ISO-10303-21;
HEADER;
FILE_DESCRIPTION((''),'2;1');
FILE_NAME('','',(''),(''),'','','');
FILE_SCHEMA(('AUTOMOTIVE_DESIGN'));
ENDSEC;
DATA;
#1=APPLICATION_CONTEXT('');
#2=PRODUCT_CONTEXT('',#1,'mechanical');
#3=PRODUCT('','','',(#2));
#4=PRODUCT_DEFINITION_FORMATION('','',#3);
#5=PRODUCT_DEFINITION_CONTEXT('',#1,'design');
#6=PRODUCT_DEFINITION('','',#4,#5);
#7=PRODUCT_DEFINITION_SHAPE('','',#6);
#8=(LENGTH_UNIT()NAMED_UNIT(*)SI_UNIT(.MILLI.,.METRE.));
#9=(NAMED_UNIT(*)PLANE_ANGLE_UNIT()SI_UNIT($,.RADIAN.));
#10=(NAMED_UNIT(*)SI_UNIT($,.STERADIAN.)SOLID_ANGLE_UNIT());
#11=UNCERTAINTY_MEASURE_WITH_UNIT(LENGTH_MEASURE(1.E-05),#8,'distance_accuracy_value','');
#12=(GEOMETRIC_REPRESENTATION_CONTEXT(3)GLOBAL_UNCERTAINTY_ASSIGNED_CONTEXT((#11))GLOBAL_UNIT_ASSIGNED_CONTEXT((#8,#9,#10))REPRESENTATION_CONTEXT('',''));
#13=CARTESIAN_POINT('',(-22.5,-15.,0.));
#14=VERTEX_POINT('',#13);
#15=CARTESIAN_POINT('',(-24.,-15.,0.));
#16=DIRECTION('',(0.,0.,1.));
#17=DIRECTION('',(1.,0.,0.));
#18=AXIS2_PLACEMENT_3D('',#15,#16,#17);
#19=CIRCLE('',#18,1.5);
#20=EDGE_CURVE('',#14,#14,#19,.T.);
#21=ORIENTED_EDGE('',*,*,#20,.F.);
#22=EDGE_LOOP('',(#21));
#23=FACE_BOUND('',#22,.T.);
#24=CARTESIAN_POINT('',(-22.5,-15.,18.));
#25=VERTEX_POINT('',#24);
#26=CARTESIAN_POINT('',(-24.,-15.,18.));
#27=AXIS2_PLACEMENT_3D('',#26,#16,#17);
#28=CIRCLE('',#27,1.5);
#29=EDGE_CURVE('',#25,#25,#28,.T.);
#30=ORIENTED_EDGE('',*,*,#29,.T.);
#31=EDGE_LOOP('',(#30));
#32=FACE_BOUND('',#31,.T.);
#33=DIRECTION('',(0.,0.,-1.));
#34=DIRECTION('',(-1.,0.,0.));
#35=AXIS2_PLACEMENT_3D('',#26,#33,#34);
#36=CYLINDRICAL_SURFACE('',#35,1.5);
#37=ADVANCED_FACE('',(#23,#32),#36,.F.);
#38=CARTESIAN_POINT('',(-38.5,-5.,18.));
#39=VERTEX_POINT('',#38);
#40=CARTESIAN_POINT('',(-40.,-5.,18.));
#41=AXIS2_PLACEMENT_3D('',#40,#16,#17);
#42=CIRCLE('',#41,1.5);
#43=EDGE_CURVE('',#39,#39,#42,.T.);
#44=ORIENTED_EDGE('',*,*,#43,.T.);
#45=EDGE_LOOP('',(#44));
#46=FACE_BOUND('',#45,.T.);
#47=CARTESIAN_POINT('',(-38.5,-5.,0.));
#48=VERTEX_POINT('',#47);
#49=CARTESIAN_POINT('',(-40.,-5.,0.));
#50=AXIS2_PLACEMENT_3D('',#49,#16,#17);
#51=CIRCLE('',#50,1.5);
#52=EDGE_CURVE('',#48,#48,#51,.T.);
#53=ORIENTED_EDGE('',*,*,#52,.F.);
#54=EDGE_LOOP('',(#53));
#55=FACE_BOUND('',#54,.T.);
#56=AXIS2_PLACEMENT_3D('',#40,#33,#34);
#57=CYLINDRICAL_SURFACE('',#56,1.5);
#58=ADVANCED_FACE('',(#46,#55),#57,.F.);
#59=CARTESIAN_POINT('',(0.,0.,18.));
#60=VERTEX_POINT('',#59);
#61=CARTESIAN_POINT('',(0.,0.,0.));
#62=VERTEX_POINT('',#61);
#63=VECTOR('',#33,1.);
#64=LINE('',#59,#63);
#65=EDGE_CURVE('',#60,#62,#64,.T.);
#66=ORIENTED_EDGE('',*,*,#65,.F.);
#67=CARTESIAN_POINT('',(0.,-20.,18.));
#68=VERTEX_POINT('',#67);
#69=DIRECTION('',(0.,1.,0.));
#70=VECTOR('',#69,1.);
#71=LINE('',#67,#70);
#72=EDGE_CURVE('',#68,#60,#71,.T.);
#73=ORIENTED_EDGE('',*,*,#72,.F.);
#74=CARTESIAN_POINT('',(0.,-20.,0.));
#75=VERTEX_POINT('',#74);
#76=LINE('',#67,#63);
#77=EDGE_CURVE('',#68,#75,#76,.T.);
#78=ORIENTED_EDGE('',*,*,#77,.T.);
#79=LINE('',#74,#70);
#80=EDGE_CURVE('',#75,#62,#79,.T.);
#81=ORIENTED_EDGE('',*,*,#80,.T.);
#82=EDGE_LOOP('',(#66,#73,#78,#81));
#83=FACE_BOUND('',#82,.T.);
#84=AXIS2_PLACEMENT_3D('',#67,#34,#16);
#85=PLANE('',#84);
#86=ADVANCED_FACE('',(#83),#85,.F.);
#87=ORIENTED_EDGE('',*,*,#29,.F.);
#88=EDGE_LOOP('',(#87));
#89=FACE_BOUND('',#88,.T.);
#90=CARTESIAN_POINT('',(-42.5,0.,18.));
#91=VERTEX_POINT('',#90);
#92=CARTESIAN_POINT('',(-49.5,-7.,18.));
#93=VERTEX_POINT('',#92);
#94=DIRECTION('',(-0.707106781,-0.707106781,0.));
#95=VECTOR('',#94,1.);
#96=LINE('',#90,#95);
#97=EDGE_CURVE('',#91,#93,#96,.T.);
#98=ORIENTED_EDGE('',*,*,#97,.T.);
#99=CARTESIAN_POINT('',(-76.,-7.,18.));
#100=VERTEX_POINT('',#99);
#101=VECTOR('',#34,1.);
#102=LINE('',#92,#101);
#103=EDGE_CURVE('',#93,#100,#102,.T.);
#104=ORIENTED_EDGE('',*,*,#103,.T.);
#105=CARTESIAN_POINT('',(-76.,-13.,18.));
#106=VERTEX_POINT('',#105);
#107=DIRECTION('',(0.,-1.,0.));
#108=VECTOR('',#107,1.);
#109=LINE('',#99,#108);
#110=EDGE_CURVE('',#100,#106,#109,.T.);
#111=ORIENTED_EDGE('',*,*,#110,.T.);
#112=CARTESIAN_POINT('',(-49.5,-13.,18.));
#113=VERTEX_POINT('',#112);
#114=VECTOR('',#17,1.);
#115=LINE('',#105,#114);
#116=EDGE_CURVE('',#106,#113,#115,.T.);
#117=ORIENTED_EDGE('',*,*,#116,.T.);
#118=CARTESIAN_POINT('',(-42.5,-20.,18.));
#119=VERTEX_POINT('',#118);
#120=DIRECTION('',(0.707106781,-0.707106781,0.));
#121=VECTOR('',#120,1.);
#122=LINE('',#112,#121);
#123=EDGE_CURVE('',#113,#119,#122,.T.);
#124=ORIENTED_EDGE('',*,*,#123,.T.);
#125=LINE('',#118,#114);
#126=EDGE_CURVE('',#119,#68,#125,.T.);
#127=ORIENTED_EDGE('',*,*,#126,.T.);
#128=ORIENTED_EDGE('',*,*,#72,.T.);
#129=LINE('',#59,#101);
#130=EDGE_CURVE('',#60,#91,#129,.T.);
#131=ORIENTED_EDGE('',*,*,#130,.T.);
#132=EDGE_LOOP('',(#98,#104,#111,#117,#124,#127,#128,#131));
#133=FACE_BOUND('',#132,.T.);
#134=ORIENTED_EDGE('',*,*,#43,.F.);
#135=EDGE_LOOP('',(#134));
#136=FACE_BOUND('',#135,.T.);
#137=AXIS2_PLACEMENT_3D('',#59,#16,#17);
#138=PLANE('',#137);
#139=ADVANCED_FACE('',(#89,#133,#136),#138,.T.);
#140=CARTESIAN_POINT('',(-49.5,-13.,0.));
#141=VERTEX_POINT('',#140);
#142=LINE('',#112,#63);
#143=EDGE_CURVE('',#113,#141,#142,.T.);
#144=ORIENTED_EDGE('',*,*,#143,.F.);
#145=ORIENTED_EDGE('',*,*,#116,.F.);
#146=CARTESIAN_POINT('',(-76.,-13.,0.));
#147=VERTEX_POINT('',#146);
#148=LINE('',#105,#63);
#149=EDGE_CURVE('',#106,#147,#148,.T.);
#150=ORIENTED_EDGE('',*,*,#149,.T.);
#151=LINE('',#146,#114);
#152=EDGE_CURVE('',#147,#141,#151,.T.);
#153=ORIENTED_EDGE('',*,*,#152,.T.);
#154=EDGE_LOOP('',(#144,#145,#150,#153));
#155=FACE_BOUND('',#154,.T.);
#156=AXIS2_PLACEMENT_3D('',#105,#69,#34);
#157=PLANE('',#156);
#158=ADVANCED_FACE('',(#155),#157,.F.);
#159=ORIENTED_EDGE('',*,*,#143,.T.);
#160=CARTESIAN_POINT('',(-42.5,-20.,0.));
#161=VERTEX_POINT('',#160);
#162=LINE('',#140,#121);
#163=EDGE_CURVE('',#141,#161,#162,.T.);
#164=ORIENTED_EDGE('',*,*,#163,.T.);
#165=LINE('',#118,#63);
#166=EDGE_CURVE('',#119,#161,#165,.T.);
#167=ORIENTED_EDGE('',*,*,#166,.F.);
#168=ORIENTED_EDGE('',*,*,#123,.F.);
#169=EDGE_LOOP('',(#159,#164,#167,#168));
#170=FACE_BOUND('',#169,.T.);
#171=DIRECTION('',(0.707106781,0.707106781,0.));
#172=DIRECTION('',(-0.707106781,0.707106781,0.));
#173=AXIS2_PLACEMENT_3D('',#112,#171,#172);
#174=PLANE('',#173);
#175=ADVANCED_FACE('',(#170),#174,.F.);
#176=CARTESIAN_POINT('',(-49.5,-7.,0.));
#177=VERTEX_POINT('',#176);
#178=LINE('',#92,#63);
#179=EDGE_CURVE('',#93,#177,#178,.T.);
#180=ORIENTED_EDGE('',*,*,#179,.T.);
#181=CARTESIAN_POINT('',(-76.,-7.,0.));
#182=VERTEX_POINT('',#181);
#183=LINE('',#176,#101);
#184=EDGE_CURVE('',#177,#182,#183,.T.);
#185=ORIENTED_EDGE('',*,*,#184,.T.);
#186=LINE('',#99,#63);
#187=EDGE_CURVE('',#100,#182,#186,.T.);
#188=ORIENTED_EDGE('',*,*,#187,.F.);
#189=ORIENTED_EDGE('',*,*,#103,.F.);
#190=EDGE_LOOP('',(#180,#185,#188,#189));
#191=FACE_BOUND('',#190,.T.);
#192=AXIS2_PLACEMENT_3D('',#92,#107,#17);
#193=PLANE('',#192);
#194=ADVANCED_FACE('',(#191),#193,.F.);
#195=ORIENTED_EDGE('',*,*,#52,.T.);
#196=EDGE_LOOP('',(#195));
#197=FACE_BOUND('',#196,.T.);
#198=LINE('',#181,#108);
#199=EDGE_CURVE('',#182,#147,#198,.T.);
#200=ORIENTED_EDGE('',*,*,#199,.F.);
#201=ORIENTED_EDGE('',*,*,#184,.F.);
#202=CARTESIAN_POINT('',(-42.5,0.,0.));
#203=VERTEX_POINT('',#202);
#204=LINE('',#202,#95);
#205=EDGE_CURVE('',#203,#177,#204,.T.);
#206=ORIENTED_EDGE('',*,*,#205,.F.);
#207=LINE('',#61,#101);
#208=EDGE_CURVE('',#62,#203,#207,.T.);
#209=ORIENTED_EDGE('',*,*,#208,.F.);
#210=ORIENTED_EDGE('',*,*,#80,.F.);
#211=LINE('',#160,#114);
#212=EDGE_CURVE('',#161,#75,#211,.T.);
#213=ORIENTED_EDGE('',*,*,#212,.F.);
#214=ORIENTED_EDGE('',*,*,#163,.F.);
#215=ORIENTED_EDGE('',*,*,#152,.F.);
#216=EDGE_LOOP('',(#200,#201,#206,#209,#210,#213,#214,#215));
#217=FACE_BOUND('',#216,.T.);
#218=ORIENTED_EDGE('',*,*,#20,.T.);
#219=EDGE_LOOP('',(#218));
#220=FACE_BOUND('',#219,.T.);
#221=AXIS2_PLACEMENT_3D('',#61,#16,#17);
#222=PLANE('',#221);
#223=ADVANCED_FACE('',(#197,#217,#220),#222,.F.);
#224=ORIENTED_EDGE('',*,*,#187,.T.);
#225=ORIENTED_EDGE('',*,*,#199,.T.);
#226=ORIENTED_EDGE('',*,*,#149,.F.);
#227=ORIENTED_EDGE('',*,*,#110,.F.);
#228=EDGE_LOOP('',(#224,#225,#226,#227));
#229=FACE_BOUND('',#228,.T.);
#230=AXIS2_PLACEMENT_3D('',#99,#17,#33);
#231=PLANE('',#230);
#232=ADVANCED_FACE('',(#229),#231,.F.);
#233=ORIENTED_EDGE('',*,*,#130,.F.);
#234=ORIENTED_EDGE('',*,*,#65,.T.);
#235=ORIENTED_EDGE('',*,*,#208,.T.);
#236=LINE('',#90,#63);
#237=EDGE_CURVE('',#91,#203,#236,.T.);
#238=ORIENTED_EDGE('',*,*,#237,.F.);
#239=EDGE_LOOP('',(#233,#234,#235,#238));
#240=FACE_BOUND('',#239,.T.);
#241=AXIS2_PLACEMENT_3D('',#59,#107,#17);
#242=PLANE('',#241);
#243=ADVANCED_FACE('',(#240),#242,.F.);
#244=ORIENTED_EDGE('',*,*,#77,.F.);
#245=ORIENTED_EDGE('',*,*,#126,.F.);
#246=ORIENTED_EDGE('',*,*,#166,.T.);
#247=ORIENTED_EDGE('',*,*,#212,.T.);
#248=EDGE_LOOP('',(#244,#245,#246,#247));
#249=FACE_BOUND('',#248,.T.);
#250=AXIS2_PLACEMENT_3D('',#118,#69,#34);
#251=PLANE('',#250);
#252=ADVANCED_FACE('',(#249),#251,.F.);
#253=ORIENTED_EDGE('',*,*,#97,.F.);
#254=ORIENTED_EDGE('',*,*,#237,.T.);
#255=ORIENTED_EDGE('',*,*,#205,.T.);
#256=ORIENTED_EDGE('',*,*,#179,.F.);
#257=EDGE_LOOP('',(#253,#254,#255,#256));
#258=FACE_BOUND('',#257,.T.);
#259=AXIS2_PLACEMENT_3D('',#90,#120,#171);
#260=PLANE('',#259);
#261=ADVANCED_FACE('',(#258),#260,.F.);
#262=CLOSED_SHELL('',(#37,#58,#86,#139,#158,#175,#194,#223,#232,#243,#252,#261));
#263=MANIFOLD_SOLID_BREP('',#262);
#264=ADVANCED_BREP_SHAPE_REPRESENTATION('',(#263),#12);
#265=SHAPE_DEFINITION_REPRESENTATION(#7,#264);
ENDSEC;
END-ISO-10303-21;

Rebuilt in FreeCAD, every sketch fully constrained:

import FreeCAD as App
import Part
import Sketcher


def add_polygon(sketch, points):
    """Adds a closed chain of lines whose ends are joined by coincident constraints."""
    first, n = sketch.GeometryCount, len(points)
    for a, b in zip(points, points[1:] + points[:1]):
        sketch.addGeometry(Part.LineSegment(App.Vector(*a, 0), App.Vector(*b, 0)), False)
    for i in range(n):
        sketch.addConstraint(Sketcher.Constraint("Coincident", first + i, 2, first + (i + 1) % n, 1))

doc = App.newDocument("Part")
body = doc.addObject("PartDesign::Body", "Body")

sketch1 = body.newObject("Sketcher::SketchObject", "Sketch")
sketch1.AttachmentSupport = (doc.getObject("XY_Plane"), [""])
sketch1.MapMode = "FlatFace"
add_polygon(sketch1, [(-76, -7), (-76, -13), (-49.5, -13), (-42.5, -20), (0, -20), (0, 0), (-42.5, 0), (-49.5, -7)])
sketch1.addGeometry(Part.Circle(App.Vector(-24, -15, 0), App.Vector(0, 0, 1), 1.5), False)
sketch1.addGeometry(Part.Circle(App.Vector(-40, -5, 0), App.Vector(0, 0, 1), 1.5), False)
sketch1.addConstraint([
    Sketcher.Constraint("Vertical", 0),
    Sketcher.Constraint("Horizontal", 1),
    Sketcher.Constraint("Horizontal", 3),
    Sketcher.Constraint("Vertical", 4),
    Sketcher.Constraint("Horizontal", 5),
    Sketcher.Constraint("Horizontal", 7),
    Sketcher.Constraint("Coincident", 4, 2, -1, 1),
    Sketcher.Constraint("Equal", 8, 9),
    Sketcher.Constraint("Perpendicular", 2, 6),
    Sketcher.Constraint("Vertical", 2, 2, 5, 2),
    Sketcher.Constraint("Vertical", 1, 2, 6, 2),
    Sketcher.Constraint("Equal", 2, 6),
    Sketcher.Constraint("Diameter", 8, 3.0),
    Sketcher.Constraint("DistanceY", 0, 2, 0, 1, 6.0),
    Sketcher.Constraint("DistanceY", 4, 1, 4, 2, 20.0),
    Sketcher.Constraint("DistanceX", 1, 1, 1, 2, 26.5),
    Sketcher.Constraint("DistanceX", 3, 1, 3, 2, 42.5),
    Sketcher.Constraint("DistanceX", 8, 3, -1, 1, 24.0),
    Sketcher.Constraint("DistanceY", 8, 3, -1, 1, 15.0),
    Sketcher.Constraint("DistanceX", 9, 3, -1, 1, 40.0),
    Sketcher.Constraint("DistanceY", 9, 3, -1, 1, 5.0),
])
pad1 = body.newObject("PartDesign::Pad", "Pad")
pad1.Profile = sketch1
pad1.Length = 18

doc.recompute()
